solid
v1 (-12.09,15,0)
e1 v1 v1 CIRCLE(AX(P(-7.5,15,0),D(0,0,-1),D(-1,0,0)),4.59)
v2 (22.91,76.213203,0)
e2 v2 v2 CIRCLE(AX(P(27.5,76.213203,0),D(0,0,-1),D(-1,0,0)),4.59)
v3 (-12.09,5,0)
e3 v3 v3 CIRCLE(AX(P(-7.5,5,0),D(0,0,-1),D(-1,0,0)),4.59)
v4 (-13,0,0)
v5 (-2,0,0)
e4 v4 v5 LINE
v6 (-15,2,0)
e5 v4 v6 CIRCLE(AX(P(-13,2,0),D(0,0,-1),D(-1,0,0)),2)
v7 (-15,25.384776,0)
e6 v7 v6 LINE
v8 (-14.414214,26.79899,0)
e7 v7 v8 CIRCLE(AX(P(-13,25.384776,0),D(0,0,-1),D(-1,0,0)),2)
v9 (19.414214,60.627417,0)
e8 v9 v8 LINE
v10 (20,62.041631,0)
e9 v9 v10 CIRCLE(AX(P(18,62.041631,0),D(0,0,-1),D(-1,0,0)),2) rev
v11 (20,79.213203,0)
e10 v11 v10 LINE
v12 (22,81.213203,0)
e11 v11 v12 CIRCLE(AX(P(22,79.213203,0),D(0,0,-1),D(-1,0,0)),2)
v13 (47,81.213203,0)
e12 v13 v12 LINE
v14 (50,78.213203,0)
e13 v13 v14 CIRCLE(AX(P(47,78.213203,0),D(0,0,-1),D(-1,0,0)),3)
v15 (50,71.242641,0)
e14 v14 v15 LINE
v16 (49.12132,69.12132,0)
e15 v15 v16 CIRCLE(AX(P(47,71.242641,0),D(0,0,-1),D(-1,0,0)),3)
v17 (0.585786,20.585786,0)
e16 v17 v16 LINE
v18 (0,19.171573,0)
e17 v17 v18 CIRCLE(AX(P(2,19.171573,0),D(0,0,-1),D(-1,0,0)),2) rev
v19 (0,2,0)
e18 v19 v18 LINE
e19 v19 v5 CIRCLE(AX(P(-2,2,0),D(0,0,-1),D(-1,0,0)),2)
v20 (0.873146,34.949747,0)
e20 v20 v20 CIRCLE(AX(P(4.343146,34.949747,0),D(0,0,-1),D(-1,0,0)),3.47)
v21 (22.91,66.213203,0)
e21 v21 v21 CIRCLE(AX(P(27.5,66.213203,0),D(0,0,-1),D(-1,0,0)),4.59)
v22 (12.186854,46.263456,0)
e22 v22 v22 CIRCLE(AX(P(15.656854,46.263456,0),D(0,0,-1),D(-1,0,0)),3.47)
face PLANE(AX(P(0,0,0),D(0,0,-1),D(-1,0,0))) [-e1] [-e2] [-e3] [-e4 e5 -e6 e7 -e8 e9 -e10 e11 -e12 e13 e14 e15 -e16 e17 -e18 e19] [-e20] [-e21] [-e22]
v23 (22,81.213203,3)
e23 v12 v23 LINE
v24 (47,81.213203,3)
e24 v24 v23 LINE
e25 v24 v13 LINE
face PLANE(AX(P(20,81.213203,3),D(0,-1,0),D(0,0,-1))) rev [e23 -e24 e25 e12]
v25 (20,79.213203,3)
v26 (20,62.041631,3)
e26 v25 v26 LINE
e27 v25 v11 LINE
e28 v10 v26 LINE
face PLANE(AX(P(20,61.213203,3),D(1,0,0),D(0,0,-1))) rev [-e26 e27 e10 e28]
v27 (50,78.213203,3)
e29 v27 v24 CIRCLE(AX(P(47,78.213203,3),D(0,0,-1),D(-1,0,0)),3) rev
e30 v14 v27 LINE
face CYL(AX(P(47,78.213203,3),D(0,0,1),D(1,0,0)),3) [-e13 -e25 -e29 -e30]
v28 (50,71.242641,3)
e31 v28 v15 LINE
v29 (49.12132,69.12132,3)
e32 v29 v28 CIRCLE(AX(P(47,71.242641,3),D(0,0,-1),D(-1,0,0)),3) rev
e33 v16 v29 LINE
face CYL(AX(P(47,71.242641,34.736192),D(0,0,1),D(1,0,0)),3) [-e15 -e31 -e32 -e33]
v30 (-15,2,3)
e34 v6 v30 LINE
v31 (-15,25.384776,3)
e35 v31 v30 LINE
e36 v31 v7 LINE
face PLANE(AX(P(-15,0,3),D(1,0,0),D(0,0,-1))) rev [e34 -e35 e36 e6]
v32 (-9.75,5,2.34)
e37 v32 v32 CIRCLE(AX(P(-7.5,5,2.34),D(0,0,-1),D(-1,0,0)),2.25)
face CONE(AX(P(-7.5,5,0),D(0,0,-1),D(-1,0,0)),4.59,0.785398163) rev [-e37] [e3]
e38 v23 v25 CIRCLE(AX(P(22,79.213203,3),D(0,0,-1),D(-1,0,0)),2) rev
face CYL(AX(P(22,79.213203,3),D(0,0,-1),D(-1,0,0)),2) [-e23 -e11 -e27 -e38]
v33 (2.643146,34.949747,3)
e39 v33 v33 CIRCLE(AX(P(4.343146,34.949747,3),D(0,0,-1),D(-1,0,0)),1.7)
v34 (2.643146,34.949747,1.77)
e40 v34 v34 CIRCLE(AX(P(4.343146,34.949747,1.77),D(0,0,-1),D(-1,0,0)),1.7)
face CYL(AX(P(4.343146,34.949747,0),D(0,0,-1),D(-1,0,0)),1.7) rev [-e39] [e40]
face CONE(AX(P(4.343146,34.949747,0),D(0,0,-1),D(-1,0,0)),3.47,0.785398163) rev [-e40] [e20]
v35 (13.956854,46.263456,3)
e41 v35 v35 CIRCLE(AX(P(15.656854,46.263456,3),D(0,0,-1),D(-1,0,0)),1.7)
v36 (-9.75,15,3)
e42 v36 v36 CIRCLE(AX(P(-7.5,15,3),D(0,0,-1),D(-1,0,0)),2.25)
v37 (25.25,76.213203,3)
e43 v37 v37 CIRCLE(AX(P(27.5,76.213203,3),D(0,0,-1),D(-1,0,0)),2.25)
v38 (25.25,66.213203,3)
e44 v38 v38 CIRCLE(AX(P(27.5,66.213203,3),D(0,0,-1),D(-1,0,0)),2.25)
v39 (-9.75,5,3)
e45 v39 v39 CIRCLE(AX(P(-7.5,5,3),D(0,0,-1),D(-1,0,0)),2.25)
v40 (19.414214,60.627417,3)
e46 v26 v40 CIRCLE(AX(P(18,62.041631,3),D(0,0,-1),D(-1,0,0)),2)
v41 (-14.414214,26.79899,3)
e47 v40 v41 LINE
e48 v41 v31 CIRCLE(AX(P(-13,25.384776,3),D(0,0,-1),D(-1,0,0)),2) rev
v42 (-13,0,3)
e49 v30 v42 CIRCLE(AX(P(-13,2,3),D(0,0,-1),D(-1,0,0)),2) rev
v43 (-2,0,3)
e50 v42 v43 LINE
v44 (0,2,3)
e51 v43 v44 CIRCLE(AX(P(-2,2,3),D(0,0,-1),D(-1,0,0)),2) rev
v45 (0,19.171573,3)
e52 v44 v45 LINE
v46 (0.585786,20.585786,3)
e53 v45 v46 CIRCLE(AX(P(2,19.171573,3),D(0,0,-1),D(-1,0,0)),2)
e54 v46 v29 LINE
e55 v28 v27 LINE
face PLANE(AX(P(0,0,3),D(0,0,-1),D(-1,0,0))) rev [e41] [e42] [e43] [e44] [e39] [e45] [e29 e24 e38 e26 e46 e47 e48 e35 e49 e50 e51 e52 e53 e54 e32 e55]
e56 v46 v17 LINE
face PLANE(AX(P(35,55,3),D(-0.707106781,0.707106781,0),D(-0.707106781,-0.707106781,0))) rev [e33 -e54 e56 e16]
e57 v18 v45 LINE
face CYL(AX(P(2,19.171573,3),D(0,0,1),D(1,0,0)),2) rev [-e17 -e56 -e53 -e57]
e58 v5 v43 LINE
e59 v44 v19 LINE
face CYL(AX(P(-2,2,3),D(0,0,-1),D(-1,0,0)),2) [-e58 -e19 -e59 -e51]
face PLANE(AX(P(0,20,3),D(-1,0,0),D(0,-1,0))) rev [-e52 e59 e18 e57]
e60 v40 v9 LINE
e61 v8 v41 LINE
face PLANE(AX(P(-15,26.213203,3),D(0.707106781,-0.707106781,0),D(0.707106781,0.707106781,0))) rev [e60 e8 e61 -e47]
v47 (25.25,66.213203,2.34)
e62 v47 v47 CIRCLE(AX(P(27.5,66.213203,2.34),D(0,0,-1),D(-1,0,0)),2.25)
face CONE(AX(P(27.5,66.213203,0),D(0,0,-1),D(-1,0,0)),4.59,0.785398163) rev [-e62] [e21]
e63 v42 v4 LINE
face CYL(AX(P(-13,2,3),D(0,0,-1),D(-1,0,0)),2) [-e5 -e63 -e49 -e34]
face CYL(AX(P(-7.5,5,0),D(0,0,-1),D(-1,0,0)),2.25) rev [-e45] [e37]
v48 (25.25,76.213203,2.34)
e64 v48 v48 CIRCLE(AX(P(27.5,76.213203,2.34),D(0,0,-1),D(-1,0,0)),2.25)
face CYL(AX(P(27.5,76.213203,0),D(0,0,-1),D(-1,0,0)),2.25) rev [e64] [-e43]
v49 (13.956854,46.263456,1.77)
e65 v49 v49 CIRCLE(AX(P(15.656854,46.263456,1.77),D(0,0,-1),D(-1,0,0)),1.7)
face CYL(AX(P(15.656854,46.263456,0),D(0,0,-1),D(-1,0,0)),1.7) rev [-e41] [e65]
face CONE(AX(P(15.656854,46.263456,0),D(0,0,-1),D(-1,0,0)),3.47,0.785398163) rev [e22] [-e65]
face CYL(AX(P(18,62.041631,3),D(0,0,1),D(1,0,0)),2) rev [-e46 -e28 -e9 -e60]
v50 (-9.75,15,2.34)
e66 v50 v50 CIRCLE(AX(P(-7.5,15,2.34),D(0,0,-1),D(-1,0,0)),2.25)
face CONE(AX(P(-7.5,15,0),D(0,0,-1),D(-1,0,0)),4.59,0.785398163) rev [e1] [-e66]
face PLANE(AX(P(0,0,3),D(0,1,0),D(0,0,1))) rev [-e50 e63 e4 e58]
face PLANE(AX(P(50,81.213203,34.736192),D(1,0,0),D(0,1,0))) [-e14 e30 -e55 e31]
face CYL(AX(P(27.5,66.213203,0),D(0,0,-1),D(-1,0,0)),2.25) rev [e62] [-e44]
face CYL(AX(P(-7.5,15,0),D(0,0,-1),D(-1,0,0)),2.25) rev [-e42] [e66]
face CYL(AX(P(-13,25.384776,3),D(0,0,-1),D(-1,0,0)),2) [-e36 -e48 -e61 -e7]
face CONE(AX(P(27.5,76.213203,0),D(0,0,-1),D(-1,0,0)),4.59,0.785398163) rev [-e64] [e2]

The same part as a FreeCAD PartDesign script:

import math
import FreeCAD as App
import Part
import Sketcher
Q = App.Units.Quantity


def edges_at(feature, points):
    """Names of the edges that pass closest to the given points."""
    edges = feature.Shape.Edges
    near = lambda p: min(range(len(edges)), key=lambda i: edges[i].distToShape(Part.Vertex(*p))[0])
    return sorted({f"Edge{near(p) + 1}" for p in points})


def add_polygon(sketch, points):
    """Adds a closed chain of lines whose ends are joined by coincident constraints."""
    first, n = sketch.GeometryCount, len(points)
    for a, b in zip(points, points[1:] + points[:1]):
        sketch.addGeometry(Part.LineSegment(App.Vector(*a, 0), App.Vector(*b, 0)), False)
    for i in range(n):
        sketch.addConstraint(Sketcher.Constraint("Coincident", first + i, 2, first + (i + 1) % n, 1))

doc = App.newDocument("Part")
body = doc.addObject("PartDesign::Body", "Body")

# Sketch on XY plane
sketch1 = doc.addObject("Sketcher::SketchObject", "Sketch")
body.addObject(sketch1)
sketch1.AttachmentSupport = (doc.XY_Plane, [""])
sketch1.MapMode = "FlatFace"
add_polygon(sketch1, [(-15, 0), (0, 0), (0, 20), (35, 55), (35, 81), (20, 81), (20, 61), (-15, 26)])  # lines 0-7
sketch1.addConstraint([
    Sketcher.Constraint("Horizontal", 0),
    Sketcher.Constraint("Vertical", 1),
    Sketcher.Constraint("Vertical", 3),
    Sketcher.Constraint("Horizontal", 4),
    Sketcher.Constraint("Vertical", 5),
    Sketcher.Constraint("Vertical", 7),
    Sketcher.Constraint("Coincident", 0, 2, -1, 1),
    Sketcher.Constraint("Parallel", 2, 6),
    Sketcher.Constraint("Equal", 0, 4),
    Sketcher.Constraint("Equal", 1, 5),
    Sketcher.Constraint("DistanceX", 0, 1, 0, 2, Q("15 mm")),
    Sketcher.Constraint("DistanceY", 1, 1, 1, 2, Q("20 mm")),
    Sketcher.Constraint("Angle", 2, Q("45 deg")),
    Sketcher.Constraint("DistanceX", -1, 1, 2, 2, Q("35 mm")),
    Sketcher.Constraint("DistanceY", 3, 1, 3, 2, Q("26.213203 mm")),
])
pad1 = doc.addObject("PartDesign::Pad", "Pad")
body.addObject(pad1)
pad1.Profile = sketch1
pad1.Length = 3
doc.recompute()

fillet = doc.addObject("PartDesign::Fillet", "Fillet")
body.addObject(fillet)
fillet.Base = (pad1, edges_at(pad1, [
    (0, 0, 1.5),
    (-15, 0, 1.5),
    (-15, 26.213, 1.5),
    (20, 61.213, 1.5),
    (20, 81.213, 1.5),
    (35, 81.213, 1.5),
    (35, 55, 1.5),
    (0, 20, 1.5),
]))
fillet.Radius = 2

# Sketch on XY plane
sketch2 = doc.addObject("Sketcher::SketchObject", "Sketch001")
body.addObject(sketch2)
sketch2.AttachmentSupport = (doc.XY_Plane, [""])
sketch2.MapMode = "FlatFace"
sketch2.addGeometry([
    Part.Circle(App.Vector(27.5, 76.2, 0), App.Vector(0, 0, 1), 2.2),
    Part.Circle(App.Vector(27.5, 66.2, 0), App.Vector(0, 0, 1), 2.2),
    Part.Circle(App.Vector(-7.5, 15, 0), App.Vector(0, 0, 1), 2.2),
    Part.Circle(App.Vector(-7.5, 5, 0), App.Vector(0, 0, 1), 2.2),
], False)
sketch2.addConstraint([
    Sketcher.Constraint("Equal", 0, 1),
    Sketcher.Constraint("Equal", 1, 2),
    Sketcher.Constraint("Equal", 2, 3),
    Sketcher.Constraint("Vertical", 0, 3, 1, 3),
    Sketcher.Constraint("Vertical", 2, 3, 3, 3),
    Sketcher.Constraint("Diameter", 0, Q("4.5 mm")),
    Sketcher.Constraint("DistanceY", -1, 1, 2, 3, Q("15 mm")),
    Sketcher.Constraint("DistanceY", -1, 1, 3, 3, Q("5 mm")),
    Sketcher.Constraint("DistanceY", 1, 3, 0, 3, Q("10 mm")),
    Sketcher.Constraint("DistanceX", 2, 3, 1, 3, Q("35 mm")),
    Sketcher.Constraint("DistanceX", -1, 1, 0, 3, Q("27.5 mm")),
    Sketcher.Constraint("DistanceY", -1, 1, 0, 3, Q("76.213203 mm")),
])
doc.recompute()
hole = doc.addObject("PartDesign::Hole", "Hole")
body.addObject(hole)
hole.Profile = sketch2
hole.ThreadType = "None"
hole.Diameter = 4.5
hole.DepthType = "Dimension"
hole.Depth = 24.5
hole.DrillPoint = "Angled"
hole.DrillPointAngle = 118
hole.HoleCutType = "Countersink"
hole.HoleCutDiameter = 9.18
hole.HoleCutCountersinkAngle = 90
hole.Reversed = True

# Sketch on XY plane
sketch3 = doc.addObject("Sketcher::SketchObject", "Sketch002")
body.addObject(sketch3)
sketch3.AttachmentSupport = (doc.XY_Plane, [""])
sketch3.MapMode = "FlatFace"
sketch3.addGeometry([
    Part.Circle(App.Vector(15.7, 46.3, 0), App.Vector(0, 0, 1), 1.7),
    Part.Circle(App.Vector(4.3, 34.9, 0), App.Vector(0, 0, 1), 1.7),
], False)
sketch3.addConstraint([
    Sketcher.Constraint("Equal", 0, 1),
    Sketcher.Constraint("Diameter", 0, Q("3.4 mm")),
    Sketcher.Constraint("DistanceX", 1, 3, 0, 3, Q("11.313708 mm")),
    Sketcher.Constraint("DistanceY", 1, 3, 0, 3, Q("11.313708 mm")),
    Sketcher.Constraint("DistanceX", -1, 1, 0, 3, Q("15.656854 mm")),
    Sketcher.Constraint("DistanceY", -1, 1, 0, 3, Q("46.263456 mm")),
])
doc.recompute()
hole2 = doc.addObject("PartDesign::Hole", "Hole001")
body.addObject(hole2)
hole2.Profile = sketch3
hole2.ThreadType = "None"
hole2.Diameter = 3.4
hole2.DepthType = "Dimension"
hole2.Depth = 24.5
hole2.DrillPoint = "Angled"
hole2.DrillPointAngle = 118
hole2.HoleCutType = "Countersink"
hole2.HoleCutDiameter = 6.94
hole2.HoleCutCountersinkAngle = 90
hole2.Reversed = True

# Sketch on XY plane
sketch4 = doc.addObject("Sketcher::SketchObject", "Sketch003")
body.addObject(sketch4)
sketch4.AttachmentSupport = (doc.XY_Plane, [""])
sketch4.MapMode = "FlatFace"
sketch4.AttachmentOffset = App.Placement(App.Vector(0, 0, 3), App.Rotation())
sketch4.addGeometry([
    Part.LineSegment(App.Vector(33, 81.2, 0), App.Vector(50, 81.2, 0)),  # 0
    Part.LineSegment(App.Vector(50, 81.2, 0), App.Vector(50, 70, 0)),  # 1
    Part.LineSegment(App.Vector(50, 70, 0), App.Vector(34.4, 54.4, 0)),  # 2
    Part.ArcOfCircle(Part.Circle(App.Vector(33, 55.8, 0), App.Vector(0, 0, 1), 2), math.radians(-45), math.radians(0)),  # 3
    Part.LineSegment(App.Vector(35, 55.8, 0), App.Vector(35, 79.2, 0)),  # 4
    Part.ArcOfCircle(Part.Circle(App.Vector(33, 79.2, 0), App.Vector(0, 0, 1), 2), math.radians(0), math.radians(90)),  # 5
], False)
sketch4.addConstraint([
    Sketcher.Constraint("Coincident", 0, 2, 1, 1),
    Sketcher.Constraint("Coincident", 1, 2, 2, 1),
    Sketcher.Constraint("Tangent", 2, 2, 3, 1),
    Sketcher.Constraint("Tangent", 3, 2, 4, 1),
    Sketcher.Constraint("Tangent", 4, 2, 5, 1),
    Sketcher.Constraint("Tangent", 5, 2, 0, 1),
    Sketcher.Constraint("Horizontal", 0),
    Sketcher.Constraint("Vertical", 1),
    Sketcher.Constraint("Vertical", 4),
    Sketcher.Constraint("Equal", 3, 5),
    Sketcher.Constraint("Radius", 3, Q("2 mm")),
    Sketcher.Constraint("DistanceX", 0, 1, 0, 2, Q("17 mm")),
    Sketcher.Constraint("Angle", 2, Q("-135 deg")),
    Sketcher.Constraint("DistanceX", -1, 1, 3, 3, Q("33 mm")),
    Sketcher.Constraint("DistanceY", -1, 1, 1, 2, Q("70 mm")),
    Sketcher.Constraint("DistanceY", 1, 2, 1, 1, Q("11.213203 mm")),
])
pad2 = doc.addObject("PartDesign::Pad", "Pad001")
body.addObject(pad2)
pad2.Profile = sketch4
pad2.Length = 3
pad2.Reversed = True
doc.recompute()

fillet2 = doc.addObject("PartDesign::Fillet", "Fillet001")
body.addObject(fillet2)
fillet2.Base = (pad2, edges_at(pad2, [(50, 70, 1.5), (50, 81.213, 1.5)]))
fillet2.Radius = 3

doc.recompute()
